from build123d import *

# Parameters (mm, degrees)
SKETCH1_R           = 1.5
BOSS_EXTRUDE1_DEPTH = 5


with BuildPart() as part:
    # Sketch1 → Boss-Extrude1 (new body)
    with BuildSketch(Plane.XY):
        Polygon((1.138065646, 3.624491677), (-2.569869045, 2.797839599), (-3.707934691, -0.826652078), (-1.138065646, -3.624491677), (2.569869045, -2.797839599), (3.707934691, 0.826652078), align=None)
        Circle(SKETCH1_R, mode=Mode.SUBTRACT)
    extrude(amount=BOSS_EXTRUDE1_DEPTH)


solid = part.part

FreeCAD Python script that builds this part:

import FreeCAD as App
import Part
import Sketcher

V = App.Vector
Q = App.Units.Quantity

doc = App.newDocument("Part")
params = doc.addObject("Spreadsheet::Sheet", "Params")
for row, (alias, value) in enumerate([
    ("sketch1_diameter", "3 mm"),
    ("pad1_length", "5 mm"),
], start=1):
    params.set(f"A{row}", alias)
    params.set(f"B{row}", "=" + value)
    params.setAlias(f"B{row}", alias)

body = doc.addObject("PartDesign::Body", "Body")

# Sketch on XY plane
sketch1 = body.newObject("Sketcher::SketchObject", "Sketch")
sketch1.AttachmentSupport = (doc.getObject("XY_Plane"), [""])
sketch1.MapMode = "FlatFace"
sketch1.addGeometry(Part.LineSegment(V(1.1, 3.6, 0), V(-2.6, 2.8, 0)), False)
sketch1.addGeometry(Part.LineSegment(V(-2.6, 2.8, 0), V(-3.7, -0.8, 0)), False)
sketch1.addGeometry(Part.LineSegment(V(-3.7, -0.8, 0), V(-1.1, -3.6, 0)), False)
sketch1.addGeometry(Part.LineSegment(V(-1.1, -3.6, 0), V(2.6, -2.8, 0)), False)
sketch1.addGeometry(Part.LineSegment(V(2.6, -2.8, 0), V(3.7, 0.8, 0)), False)
sketch1.addGeometry(Part.LineSegment(V(3.7, 0.8, 0), V(1.1, 3.6, 0)), False)
sketch1.addGeometry(Part.Circle(V(0, 0, 0), V(0, 0, 1), 1.5), False)
sketch1.addConstraint(Sketcher.Constraint("Coincident", 0, 2, 1, 1))
sketch1.addConstraint(Sketcher.Constraint("Coincident", 1, 2, 2, 1))
sketch1.addConstraint(Sketcher.Constraint("Coincident", 2, 2, 3, 1))
sketch1.addConstraint(Sketcher.Constraint("Coincident", 3, 2, 4, 1))
sketch1.addConstraint(Sketcher.Constraint("Coincident", 4, 2, 5, 1))
sketch1.addConstraint(Sketcher.Constraint("Coincident", 5, 2, 0, 1))
sketch1.addConstraint(Sketcher.Constraint("Coincident", 6, 3, -1, 1))
sketch1.addConstraint(Sketcher.Constraint("Symmetric", 0, 2, 3, 2, -1, 1))
sketch1.addConstraint(Sketcher.Constraint("Symmetric", 1, 2, 4, 2, -1, 1))
sketch1.addConstraint(Sketcher.Constraint("Symmetric", 2, 2, 5, 2, -1, 1))
sketch1.addConstraint(Sketcher.Constraint("Equal", 0, 1))
sketch1.addConstraint(Sketcher.Constraint("Equal", 1, 2))
sketch1.addConstraint(Sketcher.Constraint("Diameter", 6, Q("3 mm")))
sketch1.addConstraint(Sketcher.Constraint("DistanceX", 2, 2, 4, 2, Q("4.846 mm")))
sketch1.addConstraint(Sketcher.Constraint("DistanceX", 0, 2, -1, 1, Q("2.569869 mm")))
sketch1.addConstraint(Sketcher.Constraint("DistanceY", -1, 1, 0, 2, Q("2.79784 mm")))
sketch1.addConstraint(Sketcher.Constraint("DistanceY", 2, 2, -1, 1, Q("3.624492 mm")))
sketch1.setExpression("Constraints[12]", "Params.sketch1_diameter")
pad1 = body.newObject("PartDesign::Pad", "Pad")
pad1.Profile = sketch1
pad1.setExpression("Length", "Params.pad1_length")

doc.recompute()
